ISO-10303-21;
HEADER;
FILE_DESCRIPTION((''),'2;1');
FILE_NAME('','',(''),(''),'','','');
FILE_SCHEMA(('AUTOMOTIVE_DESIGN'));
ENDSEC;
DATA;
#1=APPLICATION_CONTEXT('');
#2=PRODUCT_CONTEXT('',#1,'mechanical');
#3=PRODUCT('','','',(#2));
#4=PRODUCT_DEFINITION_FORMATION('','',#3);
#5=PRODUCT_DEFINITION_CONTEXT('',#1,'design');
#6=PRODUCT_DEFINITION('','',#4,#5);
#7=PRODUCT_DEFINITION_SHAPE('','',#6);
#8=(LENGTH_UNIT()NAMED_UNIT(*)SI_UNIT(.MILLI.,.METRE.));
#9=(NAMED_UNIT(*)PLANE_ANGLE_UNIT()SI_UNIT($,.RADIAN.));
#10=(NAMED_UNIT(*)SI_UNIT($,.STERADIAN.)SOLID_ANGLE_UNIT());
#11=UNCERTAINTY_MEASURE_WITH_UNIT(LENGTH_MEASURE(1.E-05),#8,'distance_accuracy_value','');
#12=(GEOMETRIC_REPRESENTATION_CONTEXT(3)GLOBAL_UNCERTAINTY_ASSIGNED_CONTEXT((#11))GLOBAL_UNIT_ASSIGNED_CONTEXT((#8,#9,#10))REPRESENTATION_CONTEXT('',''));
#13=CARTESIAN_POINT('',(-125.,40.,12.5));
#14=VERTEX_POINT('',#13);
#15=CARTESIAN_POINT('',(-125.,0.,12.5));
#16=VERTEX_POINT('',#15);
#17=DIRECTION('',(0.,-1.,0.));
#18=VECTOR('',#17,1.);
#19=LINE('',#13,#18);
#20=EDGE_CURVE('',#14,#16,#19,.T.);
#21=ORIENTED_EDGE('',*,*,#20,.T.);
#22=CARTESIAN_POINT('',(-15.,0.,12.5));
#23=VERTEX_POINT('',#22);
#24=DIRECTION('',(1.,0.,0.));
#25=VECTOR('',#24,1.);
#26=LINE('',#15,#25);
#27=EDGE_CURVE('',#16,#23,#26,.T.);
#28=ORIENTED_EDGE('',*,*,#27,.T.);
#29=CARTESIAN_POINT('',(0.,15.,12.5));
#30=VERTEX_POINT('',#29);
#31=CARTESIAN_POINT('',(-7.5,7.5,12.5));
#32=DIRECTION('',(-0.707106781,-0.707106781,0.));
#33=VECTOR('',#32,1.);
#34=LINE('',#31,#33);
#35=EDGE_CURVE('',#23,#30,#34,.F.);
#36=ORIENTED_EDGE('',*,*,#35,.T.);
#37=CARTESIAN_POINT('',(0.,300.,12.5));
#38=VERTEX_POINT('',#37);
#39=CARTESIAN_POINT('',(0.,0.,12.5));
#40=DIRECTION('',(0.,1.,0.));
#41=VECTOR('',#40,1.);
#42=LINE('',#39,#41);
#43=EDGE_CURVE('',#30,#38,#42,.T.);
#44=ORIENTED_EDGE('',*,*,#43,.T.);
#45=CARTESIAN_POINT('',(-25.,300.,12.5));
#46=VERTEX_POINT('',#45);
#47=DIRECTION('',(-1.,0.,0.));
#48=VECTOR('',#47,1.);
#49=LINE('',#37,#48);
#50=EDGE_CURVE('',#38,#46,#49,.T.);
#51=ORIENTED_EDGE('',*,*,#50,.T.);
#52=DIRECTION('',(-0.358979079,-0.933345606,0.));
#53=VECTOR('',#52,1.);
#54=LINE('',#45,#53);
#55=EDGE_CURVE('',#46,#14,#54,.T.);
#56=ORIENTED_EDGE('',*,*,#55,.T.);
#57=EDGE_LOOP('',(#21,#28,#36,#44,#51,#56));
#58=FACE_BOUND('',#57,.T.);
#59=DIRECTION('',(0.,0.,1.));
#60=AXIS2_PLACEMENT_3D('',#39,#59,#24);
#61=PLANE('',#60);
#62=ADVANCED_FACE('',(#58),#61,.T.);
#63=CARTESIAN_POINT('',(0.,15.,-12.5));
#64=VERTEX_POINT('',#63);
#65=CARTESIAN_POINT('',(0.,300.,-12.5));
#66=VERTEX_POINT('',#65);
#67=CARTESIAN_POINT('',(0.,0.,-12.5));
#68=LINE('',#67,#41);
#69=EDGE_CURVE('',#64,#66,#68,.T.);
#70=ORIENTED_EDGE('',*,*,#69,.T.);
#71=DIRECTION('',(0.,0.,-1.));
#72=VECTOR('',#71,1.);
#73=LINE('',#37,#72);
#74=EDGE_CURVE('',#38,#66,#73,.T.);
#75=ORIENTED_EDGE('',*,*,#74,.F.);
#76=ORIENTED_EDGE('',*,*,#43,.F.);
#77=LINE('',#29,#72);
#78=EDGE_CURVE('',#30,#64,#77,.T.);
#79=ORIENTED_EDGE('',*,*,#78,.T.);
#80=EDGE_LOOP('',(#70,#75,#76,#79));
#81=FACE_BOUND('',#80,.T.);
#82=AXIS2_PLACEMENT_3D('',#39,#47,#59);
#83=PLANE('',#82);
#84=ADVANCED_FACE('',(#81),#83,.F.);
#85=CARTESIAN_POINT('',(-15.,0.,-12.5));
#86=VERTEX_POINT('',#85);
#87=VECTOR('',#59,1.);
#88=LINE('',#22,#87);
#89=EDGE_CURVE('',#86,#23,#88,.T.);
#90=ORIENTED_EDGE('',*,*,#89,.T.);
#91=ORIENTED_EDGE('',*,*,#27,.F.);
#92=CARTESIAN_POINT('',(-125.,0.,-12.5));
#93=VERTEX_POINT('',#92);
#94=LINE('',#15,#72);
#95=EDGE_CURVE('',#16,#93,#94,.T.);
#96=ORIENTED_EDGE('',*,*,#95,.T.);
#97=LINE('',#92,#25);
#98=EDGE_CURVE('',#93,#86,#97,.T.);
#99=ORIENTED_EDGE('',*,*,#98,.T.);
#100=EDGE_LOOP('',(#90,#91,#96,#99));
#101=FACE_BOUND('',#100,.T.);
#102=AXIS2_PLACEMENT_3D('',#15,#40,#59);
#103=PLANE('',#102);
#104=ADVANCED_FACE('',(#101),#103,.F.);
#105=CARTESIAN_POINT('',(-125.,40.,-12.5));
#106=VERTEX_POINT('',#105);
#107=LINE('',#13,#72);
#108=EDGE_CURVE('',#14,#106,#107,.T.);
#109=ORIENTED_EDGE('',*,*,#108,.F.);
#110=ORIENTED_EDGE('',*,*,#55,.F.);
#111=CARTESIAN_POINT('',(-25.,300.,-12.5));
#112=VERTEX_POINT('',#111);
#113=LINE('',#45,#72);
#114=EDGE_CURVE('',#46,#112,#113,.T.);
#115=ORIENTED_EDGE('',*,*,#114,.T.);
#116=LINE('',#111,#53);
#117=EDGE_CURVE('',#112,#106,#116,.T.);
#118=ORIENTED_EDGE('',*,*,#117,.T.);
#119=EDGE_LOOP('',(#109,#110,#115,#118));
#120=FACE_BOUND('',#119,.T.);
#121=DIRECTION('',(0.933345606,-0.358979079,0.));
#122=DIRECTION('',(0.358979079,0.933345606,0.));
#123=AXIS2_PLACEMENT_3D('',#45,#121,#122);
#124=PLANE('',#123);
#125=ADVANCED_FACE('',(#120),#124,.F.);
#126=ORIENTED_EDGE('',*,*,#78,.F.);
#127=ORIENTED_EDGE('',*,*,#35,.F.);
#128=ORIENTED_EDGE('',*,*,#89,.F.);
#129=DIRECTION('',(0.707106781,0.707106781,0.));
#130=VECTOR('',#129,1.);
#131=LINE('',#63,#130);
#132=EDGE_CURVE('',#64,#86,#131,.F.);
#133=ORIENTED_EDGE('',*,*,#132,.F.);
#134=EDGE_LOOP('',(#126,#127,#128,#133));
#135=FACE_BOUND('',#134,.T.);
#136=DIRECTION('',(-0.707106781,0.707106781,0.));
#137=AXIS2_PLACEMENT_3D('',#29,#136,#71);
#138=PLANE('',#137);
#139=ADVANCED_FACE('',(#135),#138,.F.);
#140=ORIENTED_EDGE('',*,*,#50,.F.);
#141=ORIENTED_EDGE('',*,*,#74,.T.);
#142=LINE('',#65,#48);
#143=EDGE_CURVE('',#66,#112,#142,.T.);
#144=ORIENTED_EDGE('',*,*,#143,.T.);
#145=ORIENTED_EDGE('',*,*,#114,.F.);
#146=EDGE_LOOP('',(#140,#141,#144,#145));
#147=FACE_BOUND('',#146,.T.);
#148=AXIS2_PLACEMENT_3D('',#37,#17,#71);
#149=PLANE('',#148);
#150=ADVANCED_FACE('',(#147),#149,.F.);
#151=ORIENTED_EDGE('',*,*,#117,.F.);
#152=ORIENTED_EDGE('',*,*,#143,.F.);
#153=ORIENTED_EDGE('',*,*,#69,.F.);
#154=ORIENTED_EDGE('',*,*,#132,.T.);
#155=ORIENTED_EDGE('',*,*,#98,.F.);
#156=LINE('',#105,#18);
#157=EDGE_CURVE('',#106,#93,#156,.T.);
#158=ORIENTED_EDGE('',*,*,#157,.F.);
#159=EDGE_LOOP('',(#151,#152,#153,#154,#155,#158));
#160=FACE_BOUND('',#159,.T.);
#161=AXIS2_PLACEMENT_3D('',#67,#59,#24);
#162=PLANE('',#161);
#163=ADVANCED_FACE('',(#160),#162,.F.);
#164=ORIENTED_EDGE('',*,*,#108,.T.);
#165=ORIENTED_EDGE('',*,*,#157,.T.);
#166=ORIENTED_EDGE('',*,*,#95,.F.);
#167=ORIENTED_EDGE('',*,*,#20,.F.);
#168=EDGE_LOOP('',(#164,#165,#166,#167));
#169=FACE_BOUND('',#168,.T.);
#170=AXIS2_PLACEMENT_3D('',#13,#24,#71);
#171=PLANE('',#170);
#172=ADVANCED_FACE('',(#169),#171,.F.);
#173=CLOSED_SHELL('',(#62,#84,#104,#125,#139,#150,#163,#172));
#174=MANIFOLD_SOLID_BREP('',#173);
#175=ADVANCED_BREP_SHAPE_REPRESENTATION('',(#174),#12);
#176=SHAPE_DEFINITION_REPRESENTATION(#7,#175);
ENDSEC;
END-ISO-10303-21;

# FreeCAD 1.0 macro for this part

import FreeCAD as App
import Part
import Sketcher
from FreeCAD import Vector
Q = App.Units.Quantity


def edges_at(feature, points):
    """Names of the edges that pass closest to the given points."""
    edges = feature.Shape.Edges
    near = lambda p: min(range(len(edges)), key=lambda i: edges[i].distToShape(Part.Vertex(*p))[0])
    return sorted({f"Edge{near(p) + 1}" for p in points})


def add_polygon(sketch, points):
    """Adds a closed chain of lines whose ends are joined by coincident constraints."""
    first, n = sketch.GeometryCount, len(points)
    for a, b in zip(points, points[1:] + points[:1]):
        sketch.addGeometry(Part.LineSegment(App.Vector(*a, 0), App.Vector(*b, 0)), False)
    for i in range(n):
        sketch.addConstraint(Sketcher.Constraint("Coincident", first + i, 2, first + (i + 1) % n, 1))

doc = App.newDocument("Part")
body = doc.addObject("PartDesign::Body", "Body")

sketch1 = body.newObject("Sketcher::SketchObject", "Sketch")
sketch1.AttachmentSupport = (doc.getObject("XY_Plane"), [""])
sketch1.MapMode = "FlatFace"
add_polygon(sketch1, [(0, 300), (-25, 300), (-125, 40), (-125, 0), (0, 0)])
sketch1.addConstraint([
    Sketcher.Constraint("Horizontal", 0),
    Sketcher.Constraint("Vertical", 2),
    Sketcher.Constraint("Horizontal", 3),
    Sketcher.Constraint("Vertical", 4),
    Sketcher.Constraint("Coincident", 3, 2, -1, 1),
    Sketcher.Constraint("DistanceX", 0, 2, 0, 1, Q("25 mm")),
    Sketcher.Constraint("DistanceX", 3, 1, 3, 2, Q("125 mm")),
    Sketcher.Constraint("DistanceY", 2, 2, 2, 1, Q("40 mm")),
    Sketcher.Constraint("DistanceY", 4, 1, 4, 2, Q("300 mm")),
])
pad1 = body.newObject("PartDesign::Pad", "Pad")
pad1.Profile = sketch1
pad1.Length = 25
pad1.Midplane = True
doc.recompute()

chamfer = body.newObject("PartDesign::Chamfer", "Chamfer")
chamfer.Base = (pad1, edges_at(pad1, [(0, 0, 0)]))
chamfer.Size = 15

doc.recompute()
